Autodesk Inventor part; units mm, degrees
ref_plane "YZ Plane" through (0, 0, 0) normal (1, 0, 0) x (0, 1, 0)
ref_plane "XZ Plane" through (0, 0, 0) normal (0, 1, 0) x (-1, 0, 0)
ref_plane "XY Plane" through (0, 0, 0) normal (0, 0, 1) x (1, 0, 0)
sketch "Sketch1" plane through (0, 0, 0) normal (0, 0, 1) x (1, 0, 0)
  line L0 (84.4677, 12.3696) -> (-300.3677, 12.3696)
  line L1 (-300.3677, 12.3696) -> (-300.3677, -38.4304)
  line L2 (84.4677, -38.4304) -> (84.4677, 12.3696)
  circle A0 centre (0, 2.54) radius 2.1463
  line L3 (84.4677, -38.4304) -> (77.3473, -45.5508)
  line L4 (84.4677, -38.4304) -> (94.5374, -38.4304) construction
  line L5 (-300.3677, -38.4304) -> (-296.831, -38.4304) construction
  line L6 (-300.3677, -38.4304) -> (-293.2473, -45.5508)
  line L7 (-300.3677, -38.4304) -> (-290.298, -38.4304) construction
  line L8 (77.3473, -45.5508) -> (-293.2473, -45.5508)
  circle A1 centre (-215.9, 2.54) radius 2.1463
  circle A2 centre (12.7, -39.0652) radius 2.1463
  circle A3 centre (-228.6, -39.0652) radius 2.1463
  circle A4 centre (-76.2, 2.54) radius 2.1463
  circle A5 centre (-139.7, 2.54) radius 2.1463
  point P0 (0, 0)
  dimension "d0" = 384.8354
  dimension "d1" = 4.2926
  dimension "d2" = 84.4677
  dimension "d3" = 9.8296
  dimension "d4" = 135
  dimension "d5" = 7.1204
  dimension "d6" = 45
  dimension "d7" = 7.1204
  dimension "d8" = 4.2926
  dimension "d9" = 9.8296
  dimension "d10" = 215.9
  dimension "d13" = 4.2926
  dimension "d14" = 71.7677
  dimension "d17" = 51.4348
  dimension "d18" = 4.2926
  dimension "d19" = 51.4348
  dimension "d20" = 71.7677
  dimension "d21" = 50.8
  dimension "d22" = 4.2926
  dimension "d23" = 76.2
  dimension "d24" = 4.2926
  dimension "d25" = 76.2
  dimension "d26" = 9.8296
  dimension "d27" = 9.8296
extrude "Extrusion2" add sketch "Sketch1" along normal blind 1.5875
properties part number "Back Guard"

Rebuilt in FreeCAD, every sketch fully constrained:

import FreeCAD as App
import Part
import Sketcher

V = App.Vector
Q = App.Units.Quantity


def add_polygon(sketch, points):
    """Adds a closed chain of lines whose ends are joined by coincident constraints."""
    first, n = sketch.GeometryCount, len(points)
    for a, b in zip(points, points[1:] + points[:1]):
        sketch.addGeometry(Part.LineSegment(App.Vector(*a, 0), App.Vector(*b, 0)), False)
    for i in range(n):
        sketch.addConstraint(Sketcher.Constraint("Coincident", first + i, 2, first + (i + 1) % n, 1))

doc = App.newDocument("Part")
body = doc.addObject("PartDesign::Body", "Body")

# Sketch on XY plane
sketch1 = doc.addObject("Sketcher::SketchObject", "Sketch")
body.addObject(sketch1)
sketch1.AttachmentSupport = (doc.XY_Plane, [""])
sketch1.MapMode = "FlatFace"
add_polygon(sketch1, [(84.4677, -38.4304), (84.4677, 12.3696), (-300.3677, 12.3696), (-300.3677, -38.4304), (-293.2473, -45.5508), (77.3473, -45.5508)])  # lines 0-5
sketch1.addGeometry(Part.Circle(V(-228.6, -39.0652, 0), V(0, 0, 1), 2.1463), False)  # 6
sketch1.addGeometry(Part.Circle(V(12.7, -39.0652, 0), V(0, 0, 1), 2.1463), False)  # 7
sketch1.addGeometry(Part.Circle(V(-215.9, 2.54, 0), V(0, 0, 1), 2.1463), False)  # 8
sketch1.addGeometry(Part.Circle(V(-139.7, 2.54, 0), V(0, 0, 1), 2.1463), False)  # 9
sketch1.addGeometry(Part.Circle(V(-76.2, 2.54, 0), V(0, 0, 1), 2.1463), False)  # 10
sketch1.addGeometry(Part.Circle(V(0, 2.54, 0), V(0, 0, 1), 2.1463), False)  # 11
sketch1.addConstraint([
    Sketcher.Constraint("Vertical", 0),
    Sketcher.Constraint("Horizontal", 1),
    Sketcher.Constraint("Vertical", 2),
    Sketcher.Constraint("Horizontal", 4),
    Sketcher.Constraint("Equal", 6, 7),
    Sketcher.Constraint("Equal", 7, 8),
    Sketcher.Constraint("Equal", 8, 9),
    Sketcher.Constraint("Equal", 9, 10),
    Sketcher.Constraint("Equal", 10, 11),
    Sketcher.Constraint("PointOnObject", 11, 3, -2),
    Sketcher.Constraint("Perpendicular", 3, 5),
    Sketcher.Constraint("Horizontal", 6, 3, 7, 3),
    Sketcher.Constraint("Horizontal", 8, 3, 9, 3),
    Sketcher.Constraint("Horizontal", 9, 3, 10, 3),
    Sketcher.Constraint("Horizontal", 10, 3, 11, 3),
    Sketcher.Constraint("Horizontal", 2, 2, 5, 2),
    Sketcher.Constraint("Equal", 3, 5),
    Sketcher.Constraint("DistanceY", 0, 1, 0, 2, Q("2 in")),
    Sketcher.Constraint("Diameter", 6, Q("0.169 in")),
    Sketcher.Constraint("DistanceX", 10, 3, -1, 1, Q("3 in")),
    Sketcher.Constraint("DistanceX", 8, 3, 9, 3, Q("3 in")),
    Sketcher.Constraint("DistanceX", 8, 3, -1, 1, Q("8.5 in")),
    Sketcher.Constraint("DistanceX", 1, 2, 1, 1, Q("15.151 in")),
    Sketcher.Constraint("DistanceX", 6, 3, -1, 1, Q("9 in")),
    Sketcher.Constraint("DistanceX", 8, 3, 7, 3, Q("9 in")),
    Sketcher.Constraint("DistanceY", 11, 3, 0, 2, Q("0.387 in")),
    Sketcher.Constraint("DistanceY", 7, 3, 0, 2, Q("2.025 in")),
    Sketcher.Constraint("DistanceY", -1, 1, 8, 3, Q("0.1 in")),
    Sketcher.Constraint("DistanceX", -1, 1, 0, 2, Q("3.3255 in")),
    Sketcher.Constraint("DistanceX", 2, 2, 3, 2, Q("7.1204 mm")),
])
pad1 = doc.addObject("PartDesign::Pad", "Pad")
body.addObject(pad1)
pad1.Profile = sketch1
pad1.Length = Q("0.0625 in")

doc.recompute()
